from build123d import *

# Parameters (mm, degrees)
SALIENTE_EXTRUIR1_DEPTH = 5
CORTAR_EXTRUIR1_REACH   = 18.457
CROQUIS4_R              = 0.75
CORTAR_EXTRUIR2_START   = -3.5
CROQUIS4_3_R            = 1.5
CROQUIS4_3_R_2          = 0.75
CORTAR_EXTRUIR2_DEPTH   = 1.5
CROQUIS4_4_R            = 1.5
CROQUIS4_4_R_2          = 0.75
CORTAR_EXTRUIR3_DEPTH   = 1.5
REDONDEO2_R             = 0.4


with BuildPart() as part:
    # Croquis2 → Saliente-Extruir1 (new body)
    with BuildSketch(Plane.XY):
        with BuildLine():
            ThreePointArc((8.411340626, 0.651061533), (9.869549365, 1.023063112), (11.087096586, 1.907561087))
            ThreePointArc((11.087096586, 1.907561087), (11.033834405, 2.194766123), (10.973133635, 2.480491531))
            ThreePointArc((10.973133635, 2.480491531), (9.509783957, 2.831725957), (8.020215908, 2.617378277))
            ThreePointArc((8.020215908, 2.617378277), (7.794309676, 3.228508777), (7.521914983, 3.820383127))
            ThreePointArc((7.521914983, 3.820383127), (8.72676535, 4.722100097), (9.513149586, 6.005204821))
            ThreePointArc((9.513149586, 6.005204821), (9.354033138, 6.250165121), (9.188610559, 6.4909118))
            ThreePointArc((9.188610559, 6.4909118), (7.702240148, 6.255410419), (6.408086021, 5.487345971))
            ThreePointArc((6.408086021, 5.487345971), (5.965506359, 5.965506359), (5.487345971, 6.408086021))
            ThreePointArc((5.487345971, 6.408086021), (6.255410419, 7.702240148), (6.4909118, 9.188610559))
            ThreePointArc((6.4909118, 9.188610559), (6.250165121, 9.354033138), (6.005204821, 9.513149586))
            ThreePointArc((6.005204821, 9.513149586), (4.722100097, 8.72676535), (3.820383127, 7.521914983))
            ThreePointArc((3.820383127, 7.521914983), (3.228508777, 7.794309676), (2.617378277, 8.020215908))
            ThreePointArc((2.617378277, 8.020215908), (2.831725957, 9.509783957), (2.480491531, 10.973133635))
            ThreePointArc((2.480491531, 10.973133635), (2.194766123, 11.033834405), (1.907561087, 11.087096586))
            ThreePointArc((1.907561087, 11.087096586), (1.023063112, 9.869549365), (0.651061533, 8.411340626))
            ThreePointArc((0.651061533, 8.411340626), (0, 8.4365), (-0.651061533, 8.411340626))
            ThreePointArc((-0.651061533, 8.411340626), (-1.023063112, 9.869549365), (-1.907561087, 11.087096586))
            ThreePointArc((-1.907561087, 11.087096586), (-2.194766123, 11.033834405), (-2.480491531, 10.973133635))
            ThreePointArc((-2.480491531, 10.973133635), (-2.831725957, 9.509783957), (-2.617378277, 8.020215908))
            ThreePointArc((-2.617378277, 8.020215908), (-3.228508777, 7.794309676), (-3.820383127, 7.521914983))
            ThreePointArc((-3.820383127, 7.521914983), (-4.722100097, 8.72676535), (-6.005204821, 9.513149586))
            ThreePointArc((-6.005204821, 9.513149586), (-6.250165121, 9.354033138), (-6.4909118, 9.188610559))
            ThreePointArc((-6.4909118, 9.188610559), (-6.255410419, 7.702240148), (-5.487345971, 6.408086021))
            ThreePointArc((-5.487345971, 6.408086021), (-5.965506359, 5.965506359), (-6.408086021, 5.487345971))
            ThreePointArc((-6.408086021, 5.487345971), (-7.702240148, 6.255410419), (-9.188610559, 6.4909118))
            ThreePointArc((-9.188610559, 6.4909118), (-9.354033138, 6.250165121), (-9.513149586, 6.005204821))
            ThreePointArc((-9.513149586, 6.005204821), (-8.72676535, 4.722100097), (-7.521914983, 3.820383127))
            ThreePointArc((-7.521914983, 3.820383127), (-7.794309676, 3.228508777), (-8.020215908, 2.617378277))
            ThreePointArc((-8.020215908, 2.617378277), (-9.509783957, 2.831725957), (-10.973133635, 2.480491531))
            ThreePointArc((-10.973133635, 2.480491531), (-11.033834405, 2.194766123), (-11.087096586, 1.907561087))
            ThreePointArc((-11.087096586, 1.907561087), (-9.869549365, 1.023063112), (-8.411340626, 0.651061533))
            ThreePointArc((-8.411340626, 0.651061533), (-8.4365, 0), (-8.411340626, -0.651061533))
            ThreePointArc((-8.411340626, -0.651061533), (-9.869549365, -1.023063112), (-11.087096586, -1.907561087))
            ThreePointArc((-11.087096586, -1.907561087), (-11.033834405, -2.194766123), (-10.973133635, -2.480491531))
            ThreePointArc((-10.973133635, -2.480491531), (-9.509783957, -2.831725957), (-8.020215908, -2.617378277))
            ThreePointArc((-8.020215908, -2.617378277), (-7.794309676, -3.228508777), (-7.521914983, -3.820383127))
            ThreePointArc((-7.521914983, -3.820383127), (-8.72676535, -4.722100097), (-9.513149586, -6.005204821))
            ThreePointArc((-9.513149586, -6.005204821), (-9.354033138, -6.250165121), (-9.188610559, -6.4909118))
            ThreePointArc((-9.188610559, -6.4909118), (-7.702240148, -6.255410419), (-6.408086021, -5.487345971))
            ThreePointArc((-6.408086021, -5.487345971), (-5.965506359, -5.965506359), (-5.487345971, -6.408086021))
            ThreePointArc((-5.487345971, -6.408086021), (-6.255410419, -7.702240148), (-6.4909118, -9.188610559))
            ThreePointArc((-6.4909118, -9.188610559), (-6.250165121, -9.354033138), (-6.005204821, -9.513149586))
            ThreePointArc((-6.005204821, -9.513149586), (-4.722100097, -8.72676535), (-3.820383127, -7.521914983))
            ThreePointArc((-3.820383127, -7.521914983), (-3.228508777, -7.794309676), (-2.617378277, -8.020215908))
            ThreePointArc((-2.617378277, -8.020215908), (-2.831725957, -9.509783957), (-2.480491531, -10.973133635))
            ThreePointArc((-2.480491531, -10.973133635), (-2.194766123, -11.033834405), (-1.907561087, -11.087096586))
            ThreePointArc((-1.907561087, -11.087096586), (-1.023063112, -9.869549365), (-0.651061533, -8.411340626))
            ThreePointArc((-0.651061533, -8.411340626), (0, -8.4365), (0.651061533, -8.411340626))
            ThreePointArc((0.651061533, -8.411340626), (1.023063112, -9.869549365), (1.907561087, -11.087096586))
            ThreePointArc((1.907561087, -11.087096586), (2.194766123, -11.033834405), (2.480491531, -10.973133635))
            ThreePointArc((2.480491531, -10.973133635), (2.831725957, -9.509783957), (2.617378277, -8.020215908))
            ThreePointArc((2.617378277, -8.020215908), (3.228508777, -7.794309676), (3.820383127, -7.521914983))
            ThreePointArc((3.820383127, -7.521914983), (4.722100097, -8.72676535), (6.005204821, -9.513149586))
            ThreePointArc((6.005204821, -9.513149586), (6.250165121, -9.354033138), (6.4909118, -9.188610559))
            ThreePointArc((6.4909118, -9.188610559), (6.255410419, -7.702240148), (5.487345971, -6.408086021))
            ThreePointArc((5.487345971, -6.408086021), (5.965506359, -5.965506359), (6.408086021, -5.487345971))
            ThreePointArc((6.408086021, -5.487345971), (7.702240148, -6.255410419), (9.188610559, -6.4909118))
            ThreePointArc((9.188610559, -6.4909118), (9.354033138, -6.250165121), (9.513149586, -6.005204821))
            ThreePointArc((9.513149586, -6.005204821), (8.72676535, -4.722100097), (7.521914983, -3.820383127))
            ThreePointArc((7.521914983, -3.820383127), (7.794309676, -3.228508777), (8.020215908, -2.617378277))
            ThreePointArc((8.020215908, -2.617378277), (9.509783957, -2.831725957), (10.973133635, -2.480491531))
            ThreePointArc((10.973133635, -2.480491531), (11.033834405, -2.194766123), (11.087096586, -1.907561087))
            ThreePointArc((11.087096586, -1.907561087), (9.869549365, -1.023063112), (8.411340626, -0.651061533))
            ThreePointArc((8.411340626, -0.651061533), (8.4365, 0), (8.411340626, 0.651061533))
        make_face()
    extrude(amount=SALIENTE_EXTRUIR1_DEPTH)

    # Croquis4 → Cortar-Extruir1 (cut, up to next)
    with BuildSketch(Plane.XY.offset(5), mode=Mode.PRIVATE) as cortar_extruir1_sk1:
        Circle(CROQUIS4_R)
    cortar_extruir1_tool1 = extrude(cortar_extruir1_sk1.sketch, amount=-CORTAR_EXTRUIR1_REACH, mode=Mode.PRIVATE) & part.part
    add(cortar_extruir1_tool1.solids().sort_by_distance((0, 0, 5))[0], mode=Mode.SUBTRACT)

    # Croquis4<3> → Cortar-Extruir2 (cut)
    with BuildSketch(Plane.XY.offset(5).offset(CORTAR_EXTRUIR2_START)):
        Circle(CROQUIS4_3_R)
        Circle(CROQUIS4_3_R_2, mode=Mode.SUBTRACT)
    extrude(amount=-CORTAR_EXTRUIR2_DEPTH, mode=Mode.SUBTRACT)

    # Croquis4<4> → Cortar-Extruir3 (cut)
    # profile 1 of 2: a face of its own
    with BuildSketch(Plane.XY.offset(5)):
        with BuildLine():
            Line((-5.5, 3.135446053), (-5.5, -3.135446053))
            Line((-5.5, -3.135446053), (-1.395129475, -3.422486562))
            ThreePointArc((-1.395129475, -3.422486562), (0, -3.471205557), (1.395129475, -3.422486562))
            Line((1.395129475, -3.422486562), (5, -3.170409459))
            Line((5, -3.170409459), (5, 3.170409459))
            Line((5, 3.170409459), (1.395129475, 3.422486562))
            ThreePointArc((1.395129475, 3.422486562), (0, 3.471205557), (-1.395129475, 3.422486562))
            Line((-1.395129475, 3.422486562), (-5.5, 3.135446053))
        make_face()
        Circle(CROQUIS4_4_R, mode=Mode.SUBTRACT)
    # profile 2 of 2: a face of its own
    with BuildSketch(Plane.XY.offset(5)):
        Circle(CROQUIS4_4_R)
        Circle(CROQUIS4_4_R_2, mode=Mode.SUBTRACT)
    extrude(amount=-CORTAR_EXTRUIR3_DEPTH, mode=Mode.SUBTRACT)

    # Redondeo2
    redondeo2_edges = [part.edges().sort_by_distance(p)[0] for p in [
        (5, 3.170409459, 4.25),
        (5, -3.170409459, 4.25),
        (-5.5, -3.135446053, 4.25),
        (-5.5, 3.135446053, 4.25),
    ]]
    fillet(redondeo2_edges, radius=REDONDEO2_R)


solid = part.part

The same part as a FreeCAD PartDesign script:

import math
import FreeCAD as App
import Part
import Sketcher
from FreeCAD import Vector
Q = App.Units.Quantity


def edges_at(feature, points):
    """Names of the edges that pass closest to the given points."""
    edges = feature.Shape.Edges
    near = lambda p: min(range(len(edges)), key=lambda i: edges[i].distToShape(Part.Vertex(*p))[0])
    return sorted({f"Edge{near(p) + 1}" for p in points})

doc = App.newDocument("Part")
body = doc.addObject("PartDesign::Body", "Body")

# Sketch on XY plane
sketch1 = body.newObject("Sketcher::SketchObject", "Sketch")
sketch1.AttachmentSupport = (doc.getObject("XY_Plane"), [""])
sketch1.MapMode = "FlatFace"
sketch1.addGeometry([
    Part.ArcOfCircle(Part.Circle(Vector(8.2, 4.6, 0), Vector(0, 0, 1), 4), math.radians(-87), math.radians(-43)),  # 0
    Part.ArcOfCircle(Part.Circle(Vector(0, 0, 0), Vector(0, 0, 1), 11.2), math.radians(9.76), math.radians(12.74)),  # 1
    Part.ArcOfCircle(Part.Circle(Vector(9.3, -1.2, 0), Vector(0, 0, 1), 4), math.radians(66), math.radians(109)),  # 2
    Part.ArcOfCircle(Part.Circle(Vector(0, 0, 0), Vector(0, 0, 1), 8.4), math.radians(18.07), math.radians(26.93)),  # 3
    Part.ArcOfCircle(Part.Circle(Vector(5.8, 7.4, 0), Vector(0, 0, 1), 4), math.radians(-64), math.radians(-21)),  # 4
    Part.ArcOfCircle(Part.Circle(Vector(0, 0, 0), Vector(0, 0, 1), 11.3), math.radians(32.26), math.radians(35.24)),  # 5
    Part.ArcOfCircle(Part.Circle(Vector(9.1, 2.5, 0), Vector(0, 0, 1), 4), math.radians(88), math.radians(132)),  # 6
    Part.ArcOfCircle(Part.Circle(Vector(0, 0, 0), Vector(0, 0, 1), 8.4), math.radians(40.57), math.radians(49.43)),  # 7
    Part.ArcOfCircle(Part.Circle(Vector(2.5, 9.1, 0), Vector(0, 0, 1), 4), math.radians(-42), math.radians(2)),  # 8
    Part.ArcOfCircle(Part.Circle(Vector(0, 0, 0), Vector(0, 0, 1), 11.3), math.radians(54.76), math.radians(57.74)),  # 9
    Part.ArcOfCircle(Part.Circle(Vector(7.4, 5.8, 0), Vector(0, 0, 1), 4), math.radians(111), math.radians(154)),  # 10
    Part.ArcOfCircle(Part.Circle(Vector(0, 0, 0), Vector(0, 0, 1), 8.4), math.radians(63.07), math.radians(71.93)),  # 11
    Part.ArcOfCircle(Part.Circle(Vector(-1.2, 9.3, 0), Vector(0, 0, 1), 4), math.radians(-19), math.radians(24)),  # 12
    Part.ArcOfCircle(Part.Circle(Vector(0, 0, 0), Vector(0, 0, 1), 11.2), math.radians(77.26), math.radians(80.24)),  # 13
    Part.ArcOfCircle(Part.Circle(Vector(4.6, 8.2, 0), Vector(0, 0, 1), 4), math.radians(133), math.radians(177)),  # 14
    Part.ArcOfCircle(Part.Circle(Vector(0, 0, 0), Vector(0, 0, 1), 8.4), math.radians(85.57), math.radians(94.43)),  # 15
    Part.ArcOfCircle(Part.Circle(Vector(-4.6, 8.2, 0), Vector(0, 0, 1), 4), math.radians(3), math.radians(47)),  # 16
    Part.ArcOfCircle(Part.Circle(Vector(0, 0, 0), Vector(0, 0, 1), 11.2), math.radians(99.76), math.radians(102.74)),  # 17
    Part.ArcOfCircle(Part.Circle(Vector(1.2, 9.3, 0), Vector(0, 0, 1), 4), math.radians(156), math.radians(199)),  # 18
    Part.ArcOfCircle(Part.Circle(Vector(0, 0, 0), Vector(0, 0, 1), 8.4), math.radians(108.07), math.radians(116.93)),  # 19
    Part.ArcOfCircle(Part.Circle(Vector(-7.4, 5.8, 0), Vector(0, 0, 1), 4), math.radians(26), math.radians(69)),  # 20
    Part.ArcOfCircle(Part.Circle(Vector(0, 0, 0), Vector(0, 0, 1), 11.3), math.radians(122.26), math.radians(125.24)),  # 21
    Part.ArcOfCircle(Part.Circle(Vector(-2.5, 9.1, 0), Vector(0, 0, 1), 4), math.radians(178), math.radians(222)),  # 22
    Part.ArcOfCircle(Part.Circle(Vector(0, 0, 0), Vector(0, 0, 1), 8.4), math.radians(130.57), math.radians(139.43)),  # 23
    Part.ArcOfCircle(Part.Circle(Vector(-9.1, 2.5, 0), Vector(0, 0, 1), 4), math.radians(48), math.radians(92)),  # 24
    Part.ArcOfCircle(Part.Circle(Vector(0, 0, 0), Vector(0, 0, 1), 11.3), math.radians(144.76), math.radians(147.74)),  # 25
    Part.ArcOfCircle(Part.Circle(Vector(-5.8, 7.4, 0), Vector(0, 0, 1), 4), math.radians(-159), math.radians(-116)),  # 26
    Part.ArcOfCircle(Part.Circle(Vector(0, 0, 0), Vector(0, 0, 1), 8.4), math.radians(153.07), math.radians(161.93)),  # 27
    Part.ArcOfCircle(Part.Circle(Vector(-9.3, -1.2, 0), Vector(0, 0, 1), 4), math.radians(71), math.radians(114)),  # 28
    Part.ArcOfCircle(Part.Circle(Vector(0, 0, 0), Vector(0, 0, 1), 11.2), math.radians(167.26), math.radians(170.24)),  # 29
    Part.ArcOfCircle(Part.Circle(Vector(-8.2, 4.6, 0), Vector(0, 0, 1), 4), math.radians(-137), math.radians(-93)),  # 30
    Part.ArcOfCircle(Part.Circle(Vector(0, 0, 0), Vector(0, 0, 1), 8.4), math.radians(175.57), math.radians(184.43)),  # 31
    Part.ArcOfCircle(Part.Circle(Vector(-8.2, -4.6, 0), Vector(0, 0, 1), 4), math.radians(93), math.radians(137)),  # 32
    Part.ArcOfCircle(Part.Circle(Vector(0, 0, 0), Vector(0, 0, 1), 11.2), math.radians(-170.24), math.radians(-167.26)),  # 33
    Part.ArcOfCircle(Part.Circle(Vector(-9.3, 1.2, 0), Vector(0, 0, 1), 4), math.radians(-114), math.radians(-71)),  # 34
    Part.ArcOfCircle(Part.Circle(Vector(0, 0, 0), Vector(0, 0, 1), 8.4), math.radians(-161.93), math.radians(-153.07)),  # 35
    Part.ArcOfCircle(Part.Circle(Vector(-5.8, -7.4, 0), Vector(0, 0, 1), 4), math.radians(116), math.radians(159)),  # 36
    Part.ArcOfCircle(Part.Circle(Vector(0, 0, 0), Vector(0, 0, 1), 11.3), math.radians(-147.74), math.radians(-144.76)),  # 37
    Part.ArcOfCircle(Part.Circle(Vector(-9.1, -2.5, 0), Vector(0, 0, 1), 4), math.radians(-92), math.radians(-48)),  # 38
    Part.ArcOfCircle(Part.Circle(Vector(0, 0, 0), Vector(0, 0, 1), 8.4), math.radians(-139.43), math.radians(-130.57)),  # 39
    Part.ArcOfCircle(Part.Circle(Vector(-2.5, -9.1, 0), Vector(0, 0, 1), 4), math.radians(138), math.radians(182)),  # 40
    Part.ArcOfCircle(Part.Circle(Vector(0, 0, 0), Vector(0, 0, 1), 11.3), math.radians(-125.24), math.radians(-122.26)),  # 41
    Part.ArcOfCircle(Part.Circle(Vector(-7.4, -5.8, 0), Vector(0, 0, 1), 4), math.radians(-69), math.radians(-26)),  # 42
    Part.ArcOfCircle(Part.Circle(Vector(0, 0, 0), Vector(0, 0, 1), 8.4), math.radians(-116.93), math.radians(-108.07)),  # 43
    Part.ArcOfCircle(Part.Circle(Vector(1.2, -9.3, 0), Vector(0, 0, 1), 4), math.radians(161), math.radians(204)),  # 44
    Part.ArcOfCircle(Part.Circle(Vector(0, 0, 0), Vector(0, 0, 1), 11.2), math.radians(-102.74), math.radians(-99.76)),  # 45
    Part.ArcOfCircle(Part.Circle(Vector(-4.6, -8.2, 0), Vector(0, 0, 1), 4), math.radians(-47), math.radians(-3)),  # 46
    Part.ArcOfCircle(Part.Circle(Vector(0, 0, 0), Vector(0, 0, 1), 8.4), math.radians(-94.43), math.radians(-85.57)),  # 47
    Part.ArcOfCircle(Part.Circle(Vector(4.6, -8.2, 0), Vector(0, 0, 1), 4), math.radians(-177), math.radians(-133)),  # 48
    Part.ArcOfCircle(Part.Circle(Vector(0, 0, 0), Vector(0, 0, 1), 11.2), math.radians(-80.24), math.radians(-77.26)),  # 49
    Part.ArcOfCircle(Part.Circle(Vector(-1.2, -9.3, 0), Vector(0, 0, 1), 4), math.radians(-24), math.radians(19)),  # 50
    Part.ArcOfCircle(Part.Circle(Vector(0, 0, 0), Vector(0, 0, 1), 8.4), math.radians(-71.93), math.radians(-63.07)),  # 51
    Part.ArcOfCircle(Part.Circle(Vector(7.4, -5.8, 0), Vector(0, 0, 1), 4), math.radians(-154), math.radians(-111)),  # 52
    Part.ArcOfCircle(Part.Circle(Vector(0, 0, 0), Vector(0, 0, 1), 11.3), math.radians(-57.74), math.radians(-54.76)),  # 53
    Part.ArcOfCircle(Part.Circle(Vector(2.5, -9.1, 0), Vector(0, 0, 1), 4), math.radians(-2), math.radians(42)),  # 54
    Part.ArcOfCircle(Part.Circle(Vector(0, 0, 0), Vector(0, 0, 1), 8.4), math.radians(-49.43), math.radians(-40.57)),  # 55
    Part.ArcOfCircle(Part.Circle(Vector(9.1, -2.5, 0), Vector(0, 0, 1), 4), math.radians(-132), math.radians(-88)),  # 56
    Part.ArcOfCircle(Part.Circle(Vector(0, 0, 0), Vector(0, 0, 1), 11.3), math.radians(-35.24), math.radians(-32.26)),  # 57
    Part.ArcOfCircle(Part.Circle(Vector(5.8, -7.4, 0), Vector(0, 0, 1), 4), math.radians(21), math.radians(64)),  # 58
    Part.ArcOfCircle(Part.Circle(Vector(0, 0, 0), Vector(0, 0, 1), 8.4), math.radians(-26.93), math.radians(-18.07)),  # 59
    Part.ArcOfCircle(Part.Circle(Vector(9.3, 1.2, 0), Vector(0, 0, 1), 4), math.radians(-109), math.radians(-66)),  # 60
    Part.ArcOfCircle(Part.Circle(Vector(0, 0, 0), Vector(0, 0, 1), 11.2), math.radians(-12.74), math.radians(-9.76)),  # 61
    Part.ArcOfCircle(Part.Circle(Vector(8.2, -4.6, 0), Vector(0, 0, 1), 4), math.radians(43), math.radians(87)),  # 62
    Part.ArcOfCircle(Part.Circle(Vector(0, 0, 0), Vector(0, 0, 1), 8.4), math.radians(-4.43), math.radians(4.43)),  # 63
], False)
sketch1.addConstraint([
    Sketcher.Constraint("Coincident", 0, 2, 1, 1),
    Sketcher.Constraint("Coincident", 1, 2, 2, 1),
    Sketcher.Constraint("Coincident", 2, 2, 3, 1),
    Sketcher.Constraint("Coincident", 3, 2, 4, 1),
    Sketcher.Constraint("Coincident", 4, 2, 5, 1),
    Sketcher.Constraint("Coincident", 5, 2, 6, 1),
    Sketcher.Constraint("Coincident", 6, 2, 7, 1),
    Sketcher.Constraint("Coincident", 7, 2, 8, 1),
    Sketcher.Constraint("Coincident", 8, 2, 9, 1),
    Sketcher.Constraint("Coincident", 9, 2, 10, 1),
    Sketcher.Constraint("Coincident", 10, 2, 11, 1),
    Sketcher.Constraint("Coincident", 11, 2, 12, 1),
    Sketcher.Constraint("Coincident", 12, 2, 13, 1),
    Sketcher.Constraint("Coincident", 13, 2, 14, 1),
    Sketcher.Constraint("Coincident", 14, 2, 15, 1),
    Sketcher.Constraint("Coincident", 15, 2, 16, 1),
    Sketcher.Constraint("Coincident", 16, 2, 17, 1),
    Sketcher.Constraint("Coincident", 17, 2, 18, 1),
    Sketcher.Constraint("Coincident", 18, 2, 19, 1),
    Sketcher.Constraint("Coincident", 19, 2, 20, 1),
    Sketcher.Constraint("Coincident", 20, 2, 21, 1),
    Sketcher.Constraint("Coincident", 21, 2, 22, 1),
    Sketcher.Constraint("Coincident", 22, 2, 23, 1),
    Sketcher.Constraint("Coincident", 23, 2, 24, 1),
    Sketcher.Constraint("Coincident", 24, 2, 25, 1),
    Sketcher.Constraint("Coincident", 25, 2, 26, 1),
    Sketcher.Constraint("Coincident", 26, 2, 27, 1),
    Sketcher.Constraint("Coincident", 27, 2, 28, 1),
    Sketcher.Constraint("Coincident", 28, 2, 29, 1),
    Sketcher.Constraint("Coincident", 29, 2, 30, 1),
    Sketcher.Constraint("Coincident", 30, 2, 31, 1),
    Sketcher.Constraint("Coincident", 31, 2, 32, 1),
    Sketcher.Constraint("Coincident", 32, 2, 33, 1),
    Sketcher.Constraint("Coincident", 33, 2, 34, 1),
    Sketcher.Constraint("Coincident", 34, 2, 35, 1),
    Sketcher.Constraint("Coincident", 35, 2, 36, 1),
    Sketcher.Constraint("Coincident", 36, 2, 37, 1),
    Sketcher.Constraint("Coincident", 37, 2, 38, 1),
    Sketcher.Constraint("Coincident", 38, 2, 39, 1),
    Sketcher.Constraint("Coincident", 39, 2, 40, 1),
    Sketcher.Constraint("Coincident", 40, 2, 41, 1),
    Sketcher.Constraint("Coincident", 41, 2, 42, 1),
    Sketcher.Constraint("Coincident", 42, 2, 43, 1),
    Sketcher.Constraint("Coincident", 43, 2, 44, 1),
    Sketcher.Constraint("Coincident", 44, 2, 45, 1),
    Sketcher.Constraint("Coincident", 45, 2, 46, 1),
    Sketcher.Constraint("Coincident", 46, 2, 47, 1),
    Sketcher.Constraint("Coincident", 47, 2, 48, 1),
    Sketcher.Constraint("Coincident", 48, 2, 49, 1),
    Sketcher.Constraint("Coincident", 49, 2, 50, 1),
    Sketcher.Constraint("Coincident", 50, 2, 51, 1),
    Sketcher.Constraint("Coincident", 51, 2, 52, 1),
    Sketcher.Constraint("Coincident", 52, 2, 53, 1),
    Sketcher.Constraint("Coincident", 53, 2, 54, 1),
    Sketcher.Constraint("Coincident", 54, 2, 55, 1),
    Sketcher.Constraint("Coincident", 55, 2, 56, 1),
    Sketcher.Constraint("Coincident", 56, 2, 57, 1),
    Sketcher.Constraint("Coincident", 57, 2, 58, 1),
    Sketcher.Constraint("Coincident", 58, 2, 59, 1),
    Sketcher.Constraint("Coincident", 59, 2, 60, 1),
    Sketcher.Constraint("Coincident", 60, 2, 61, 1),
    Sketcher.Constraint("Coincident", 61, 2, 62, 1),
    Sketcher.Constraint("Coincident", 62, 2, 63, 1),
    Sketcher.Constraint("Coincident", 63, 2, 0, 1),
    Sketcher.Constraint("Coincident", 1, 3, -1, 1),
    Sketcher.Constraint("Coincident", 3, 3, -1, 1),
    Sketcher.Constraint("Coincident", 5, 3, -1, 1),
    Sketcher.Constraint("Coincident", 7, 3, -1, 1),
    Sketcher.Constraint("Coincident", 9, 3, -1, 1),
    Sketcher.Constraint("Coincident", 11, 3, -1, 1),
    Sketcher.Constraint("Coincident", 13, 3, -1, 1),
    Sketcher.Constraint("Coincident", 15, 3, -1, 1),
    Sketcher.Constraint("Coincident", 17, 3, -1, 1),
    Sketcher.Constraint("Coincident", 19, 3, -1, 1),
    Sketcher.Constraint("Coincident", 21, 3, -1, 1),
    Sketcher.Constraint("Coincident", 23, 3, -1, 1),
    Sketcher.Constraint("Coincident", 25, 3, -1, 1),
    Sketcher.Constraint("Coincident", 27, 3, -1, 1),
    Sketcher.Constraint("Coincident", 29, 3, -1, 1),
    Sketcher.Constraint("Coincident", 31, 3, -1, 1),
    Sketcher.Constraint("Coincident", 33, 3, -1, 1),
    Sketcher.Constraint("Coincident", 35, 3, -1, 1),
    Sketcher.Constraint("Coincident", 37, 3, -1, 1),
    Sketcher.Constraint("Coincident", 39, 3, -1, 1),
    Sketcher.Constraint("Coincident", 41, 3, -1, 1),
    Sketcher.Constraint("Coincident", 43, 3, -1, 1),
    Sketcher.Constraint("Coincident", 45, 3, -1, 1),
    Sketcher.Constraint("Coincident", 47, 3, -1, 1),
    Sketcher.Constraint("Coincident", 49, 3, -1, 1),
    Sketcher.Constraint("Coincident", 51, 3, -1, 1),
    Sketcher.Constraint("Coincident", 53, 3, -1, 1),
    Sketcher.Constraint("Coincident", 55, 3, -1, 1),
    Sketcher.Constraint("Coincident", 57, 3, -1, 1),
    Sketcher.Constraint("Coincident", 59, 3, -1, 1),
    Sketcher.Constraint("Coincident", 61, 3, -1, 1),
    Sketcher.Constraint("Coincident", 63, 3, -1, 1),
    Sketcher.Constraint("Equal", 0, 2),
    Sketcher.Constraint("Equal", 2, 4),
    Sketcher.Constraint("Equal", 1, 5),
    Sketcher.Constraint("Equal", 4, 6),
    Sketcher.Constraint("Equal", 3, 7),
    Sketcher.Constraint("Equal", 6, 8),
    Sketcher.Constraint("Equal", 5, 9),
    Sketcher.Constraint("Equal", 8, 10),
    Sketcher.Constraint("Equal", 7, 11),
    Sketcher.Constraint("Equal", 10, 12),
    Sketcher.Constraint("Equal", 9, 13),
    Sketcher.Constraint("Equal", 12, 14),
    Sketcher.Constraint("Equal", 11, 15),
    Sketcher.Constraint("Equal", 14, 16),
    Sketcher.Constraint("Equal", 13, 17),
    Sketcher.Constraint("Equal", 16, 18),
    Sketcher.Constraint("Equal", 15, 19),
    Sketcher.Constraint("Equal", 18, 20),
    Sketcher.Constraint("Equal", 17, 21),
    Sketcher.Constraint("Equal", 20, 22),
    Sketcher.Constraint("Equal", 19, 23),
    Sketcher.Constraint("Equal", 22, 24),
    Sketcher.Constraint("Equal", 21, 25),
    Sketcher.Constraint("Equal", 24, 26),
    Sketcher.Constraint("Equal", 23, 27),
    Sketcher.Constraint("Equal", 26, 28),
    Sketcher.Constraint("Equal", 25, 29),
    Sketcher.Constraint("Equal", 28, 30),
    Sketcher.Constraint("Equal", 27, 31),
    Sketcher.Constraint("Equal", 30, 32),
    Sketcher.Constraint("Equal", 29, 33),
    Sketcher.Constraint("Equal", 32, 34),
    Sketcher.Constraint("Equal", 31, 35),
    Sketcher.Constraint("Equal", 34, 36),
    Sketcher.Constraint("Equal", 33, 37),
    Sketcher.Constraint("Equal", 36, 38),
    Sketcher.Constraint("Equal", 35, 39),
    Sketcher.Constraint("Equal", 38, 40),
    Sketcher.Constraint("Equal", 37, 41),
    Sketcher.Constraint("Equal", 40, 42),
    Sketcher.Constraint("Equal", 39, 43),
    Sketcher.Constraint("Equal", 42, 44),
    Sketcher.Constraint("Equal", 41, 45),
    Sketcher.Constraint("Equal", 44, 46),
    Sketcher.Constraint("Equal", 43, 47),
    Sketcher.Constraint("Equal", 46, 48),
    Sketcher.Constraint("Equal", 45, 49),
    Sketcher.Constraint("Equal", 48, 50),
    Sketcher.Constraint("Equal", 47, 51),
    Sketcher.Constraint("Equal", 50, 52),
    Sketcher.Constraint("Equal", 49, 53),
    Sketcher.Constraint("Equal", 52, 54),
    Sketcher.Constraint("Equal", 51, 55),
    Sketcher.Constraint("Equal", 54, 56),
    Sketcher.Constraint("Equal", 53, 57),
    Sketcher.Constraint("Equal", 56, 58),
    Sketcher.Constraint("Equal", 55, 59),
    Sketcher.Constraint("Equal", 58, 60),
    Sketcher.Constraint("Equal", 57, 61),
    Sketcher.Constraint("Equal", 60, 62),
    Sketcher.Constraint("Equal", 59, 63),
    Sketcher.Constraint("Symmetric", 0, 3, 32, 3, -1, 1),
    Sketcher.Constraint("Symmetric", 2, 3, 34, 3, -1, 1),
    Sketcher.Constraint("Symmetric", 4, 3, 36, 3, -1, 1),
    Sketcher.Constraint("Symmetric", 6, 3, 38, 3, -1, 1),
    Sketcher.Constraint("Symmetric", 8, 3, 40, 3, -1, 1),
    Sketcher.Constraint("Symmetric", 10, 3, 42, 3, -1, 1),
    Sketcher.Constraint("Symmetric", 12, 3, 44, 3, -1, 1),
    Sketcher.Constraint("Symmetric", 14, 3, 46, 3, -1, 1),
    Sketcher.Constraint("Symmetric", 16, 3, 48, 3, -1, 1),
    Sketcher.Constraint("Symmetric", 18, 3, 50, 3, -1, 1),
    Sketcher.Constraint("Symmetric", 20, 3, 52, 3, -1, 1),
    Sketcher.Constraint("Symmetric", 22, 3, 54, 3, -1, 1),
    Sketcher.Constraint("Symmetric", 24, 3, 56, 3, -1, 1),
    Sketcher.Constraint("Symmetric", 26, 3, 58, 3, -1, 1),
    Sketcher.Constraint("Symmetric", 28, 3, 60, 3, -1, 1),
    Sketcher.Constraint("Symmetric", 30, 3, 62, 3, -1, 1),
    Sketcher.Constraint("Symmetric", 14, 3, 16, 3, -2),
    Sketcher.Constraint("Symmetric", 12, 3, 18, 3, -2),
    Sketcher.Constraint("Symmetric", 10, 3, 20, 3, -2),
    Sketcher.Constraint("Symmetric", 8, 3, 22, 3, -2),
    Sketcher.Constraint("Symmetric", 6, 3, 24, 3, -2),
    Sketcher.Constraint("Symmetric", 4, 3, 26, 3, -2),
    Sketcher.Constraint("Symmetric", 2, 3, 28, 3, -2),
    Sketcher.Constraint("Symmetric", 0, 3, 30, 3, -2),
    Sketcher.Constraint("Radius", 0, Q("4 mm")),
    Sketcher.Constraint("Radius", 1, Q("11.249999 mm")),
    Sketcher.Constraint("Radius", 3, Q("8.4365 mm")),
    Sketcher.Constraint("DistanceX", -1, 1, 0, 3, Q("8.16933 mm")),
    Sketcher.Constraint("DistanceY", -1, 1, 14, 3, Q("8.16933 mm")),
    Sketcher.Constraint("DistanceY", -1, 1, 0, 2, Q("1.907561 mm")),
    Sketcher.Constraint("DistanceY", -1, 1, 1, 2, Q("2.480492 mm")),
    Sketcher.Constraint("DistanceY", -1, 1, 2, 2, Q("2.617378 mm")),
    Sketcher.Constraint("DistanceX", -1, 1, 4, 2, Q("9.51315 mm")),
    Sketcher.Constraint("DistanceX", -1, 1, 5, 2, Q("9.188611 mm")),
    Sketcher.Constraint("DistanceX", -1, 1, 8, 2, Q("6.490912 mm")),
    Sketcher.Constraint("DistanceY", -1, 1, 9, 2, Q("9.51315 mm")),
    Sketcher.Constraint("DistanceX", -1, 1, 11, 2, Q("2.617378 mm")),
    Sketcher.Constraint("DistanceX", -1, 1, 12, 2, Q("2.480492 mm")),
    Sketcher.Constraint("DistanceX", -1, 1, 13, 2, Q("1.907561 mm")),
    Sketcher.Constraint("DistanceX", -1, 1, 4, 3, Q("5.770397 mm")),
    Sketcher.Constraint("DistanceX", -1, 1, 6, 3, Q("9.060205 mm")),
    Sketcher.Constraint("DistanceX", -1, 1, 8, 3, Q("2.492973 mm")),
    Sketcher.Constraint("DistanceX", -1, 1, 10, 3, Q("7.416518 mm")),
])
pad1 = body.newObject("PartDesign::Pad", "Pad")
pad1.Profile = sketch1
pad1.Length = 5

# Sketch on XY plane
sketch2 = body.newObject("Sketcher::SketchObject", "Sketch001")
sketch2.AttachmentSupport = (doc.getObject("XY_Plane"), [""])
sketch2.MapMode = "FlatFace"
sketch2.AttachmentOffset = App.Placement(Vector(0, 0, 5), App.Rotation())
sketch2.addGeometry(Part.Circle(Vector(0, 0, 0), Vector(0, 0, 1), 0.8), False)
sketch2.addConstraint([
    Sketcher.Constraint("Coincident", 0, 3, -1, 1),
    Sketcher.Constraint("Diameter", 0, Q("1.5 mm")),
])
pocket1 = body.newObject("PartDesign::Pocket", "Pocket")
pocket1.Profile = sketch2
pocket1.Type = "UpToFirst"

# Sketch on XY plane
sketch3 = body.newObject("Sketcher::SketchObject", "Sketch002")
sketch3.AttachmentSupport = (doc.getObject("XY_Plane"), [""])
sketch3.MapMode = "FlatFace"
sketch3.AttachmentOffset = App.Placement(Vector(0, 0, 1.5), App.Rotation())
sketch3.addGeometry([
    Part.Circle(Vector(0, 0, 0), Vector(0, 0, 1), 1.5),
    Part.Circle(Vector(0, 0, 0), Vector(0, 0, 1), 0.8),
], False)
sketch3.addConstraint([
    Sketcher.Constraint("Coincident", 0, 3, -1, 1),
    Sketcher.Constraint("Coincident", 1, 3, -1, 1),
    Sketcher.Constraint("Diameter", 0, Q("3 mm")),
    Sketcher.Constraint("Diameter", 1, Q("1.5 mm")),
])
pocket2 = body.newObject("PartDesign::Pocket", "Pocket001")
pocket2.Profile = sketch3
pocket2.Length = 1.5

# Sketch on XY plane
sketch4 = body.newObject("Sketcher::SketchObject", "Sketch003")
sketch4.AttachmentSupport = (doc.getObject("XY_Plane"), [""])
sketch4.MapMode = "FlatFace"
sketch4.AttachmentOffset = App.Placement(Vector(0, 0, 5), App.Rotation())
sketch4.addGeometry([
    Part.LineSegment(Vector(-5.5, 3.1, 0), Vector(-5.5, -3.1, 0)),  # 0
    Part.LineSegment(Vector(-5.5, -3.1, 0), Vector(-1.4, -3.4, 0)),  # 1
    Part.ArcOfCircle(Part.Circle(Vector(0, 16.5, 0), Vector(0, 0, 1), 20), math.radians(-94), math.radians(-86)),  # 2
    Part.LineSegment(Vector(1.4, -3.4, 0), Vector(5, -3.2, 0)),  # 3
    Part.LineSegment(Vector(5, -3.2, 0), Vector(5, 3.2, 0)),  # 4
    Part.LineSegment(Vector(5, 3.2, 0), Vector(1.4, 3.4, 0)),  # 5
    Part.ArcOfCircle(Part.Circle(Vector(0, -16.5, 0), Vector(0, 0, 1), 20), math.radians(86), math.radians(94)),  # 6
    Part.LineSegment(Vector(-1.4, 3.4, 0), Vector(-5.5, 3.1, 0)),  # 7
    Part.Circle(Vector(0, 0, 0), Vector(0, 0, 1), 0.8),  # 8
], False)
sketch4.addConstraint([
    Sketcher.Constraint("Coincident", 0, 2, 1, 1),
    Sketcher.Constraint("Tangent", 1, 2, 2, 1),
    Sketcher.Constraint("Tangent", 2, 2, 3, 1),
    Sketcher.Constraint("Coincident", 3, 2, 4, 1),
    Sketcher.Constraint("Coincident", 4, 2, 5, 1),
    Sketcher.Constraint("Tangent", 5, 2, 6, 1),
    Sketcher.Constraint("Tangent", 6, 2, 7, 1),
    Sketcher.Constraint("Coincident", 7, 2, 0, 1),
    Sketcher.Constraint("Vertical", 0),
    Sketcher.Constraint("Vertical", 4),
    Sketcher.Constraint("Coincident", 8, 3, -1, 1),
    Sketcher.Constraint("Equal", 2, 6),
    Sketcher.Constraint("Symmetric", 2, 3, 6, 3, -1, 1),
    Sketcher.Constraint("Symmetric", 1, 2, 2, 2, -2),
    Sketcher.Constraint("Parallel", 1, 5),
    Sketcher.Constraint("Parallel", 3, 7),
    Sketcher.Constraint("Radius", 2, Q("20 mm")),
    Sketcher.Constraint("Diameter", 8, Q("1.5 mm")),
    Sketcher.Constraint("Angle", 1, Q("-4 deg")),
    Sketcher.Constraint("DistanceX", -1, 1, 3, 2, Q("5 mm")),
    Sketcher.Constraint("DistanceX", 0, 2, -1, 1, Q("5.5 mm")),
    Sketcher.Constraint("DistanceY", 4, 1, 4, 2, Q("6.340819 mm")),
])
pocket3 = body.newObject("PartDesign::Pocket", "Pocket002")
pocket3.Profile = sketch4
pocket3.Length = 1.5
doc.recompute()

fillet = body.newObject("PartDesign::Fillet", "Fillet")
fillet.Base = (pocket3, edges_at(pocket3, [
    (5, 3.17, 4.25),
    (5, -3.17, 4.25),
    (-5.5, -3.135, 4.25),
    (-5.5, 3.135, 4.25),
]))
fillet.Radius = 0.4

doc.recompute()
